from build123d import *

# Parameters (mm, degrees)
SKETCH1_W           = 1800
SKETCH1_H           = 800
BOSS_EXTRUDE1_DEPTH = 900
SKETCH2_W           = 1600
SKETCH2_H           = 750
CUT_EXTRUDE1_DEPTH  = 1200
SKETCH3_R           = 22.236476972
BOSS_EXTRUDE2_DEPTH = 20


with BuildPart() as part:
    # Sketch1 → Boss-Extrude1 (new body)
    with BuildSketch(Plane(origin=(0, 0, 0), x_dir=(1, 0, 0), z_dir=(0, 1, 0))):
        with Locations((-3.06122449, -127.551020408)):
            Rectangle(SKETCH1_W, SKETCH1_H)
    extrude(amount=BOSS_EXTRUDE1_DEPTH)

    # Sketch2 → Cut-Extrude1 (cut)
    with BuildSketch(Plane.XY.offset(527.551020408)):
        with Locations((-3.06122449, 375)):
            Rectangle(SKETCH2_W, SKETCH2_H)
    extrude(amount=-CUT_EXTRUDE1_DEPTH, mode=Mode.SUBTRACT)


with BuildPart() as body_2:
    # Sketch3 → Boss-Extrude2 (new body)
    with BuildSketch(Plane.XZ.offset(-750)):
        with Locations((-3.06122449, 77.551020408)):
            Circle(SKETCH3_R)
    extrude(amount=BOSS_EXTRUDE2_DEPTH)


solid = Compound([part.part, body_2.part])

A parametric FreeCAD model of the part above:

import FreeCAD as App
import Part
import Sketcher


def add_polygon(sketch, points):
    """Adds a closed chain of lines whose ends are joined by coincident constraints."""
    first, n = sketch.GeometryCount, len(points)
    for a, b in zip(points, points[1:] + points[:1]):
        sketch.addGeometry(Part.LineSegment(App.Vector(*a, 0), App.Vector(*b, 0)), False)
    for i in range(n):
        sketch.addConstraint(Sketcher.Constraint("Coincident", first + i, 2, first + (i + 1) % n, 1))

doc = App.newDocument("Part")
body = doc.addObject("PartDesign::Body", "Body")

# Sketch on XZ plane
sketch1 = body.newObject("Sketcher::SketchObject", "Sketch")
sketch1.AttachmentSupport = (doc.getObject("XZ_Plane"), [""])
sketch1.MapMode = "FlatFace"
add_polygon(sketch1, [(-903, -272), (-903, 528), (897, 528), (897, -272)])  # lines 0-3
sketch1.addConstraint([
    Sketcher.Constraint("Vertical", 0),
    Sketcher.Constraint("Horizontal", 1),
    Sketcher.Constraint("Vertical", 2),
    Sketcher.Constraint("Horizontal", 3),
    Sketcher.Constraint("DistanceX", 1, 1, 1, 2, 1800.0),
    Sketcher.Constraint("DistanceY", 0, 1, 0, 2, 800.0),
    Sketcher.Constraint("DistanceY", -1, 1, 0, 2, 527.55102),
    Sketcher.Constraint("DistanceX", 0, 2, -1, 1, 903.061224),
])
pad1 = body.newObject("PartDesign::Pad", "Pad")
pad1.Profile = sketch1
pad1.Length = 900
pad1.Reversed = True

# Sketch on XY plane
sketch2 = body.newObject("Sketcher::SketchObject", "Sketch001")
sketch2.AttachmentSupport = (doc.getObject("XY_Plane"), [""])
sketch2.MapMode = "FlatFace"
sketch2.AttachmentOffset = App.Placement(App.Vector(0, 0, 527.55102), App.Rotation())
add_polygon(sketch2, [(-803, 750), (-803, 0), (797, 0), (797, 750)])  # lines 0-3
sketch2.addConstraint([
    Sketcher.Constraint("Vertical", 0),
    Sketcher.Constraint("Horizontal", 1),
    Sketcher.Constraint("Vertical", 2),
    Sketcher.Constraint("Horizontal", 3),
    Sketcher.Constraint("PointOnObject", 0, 2, -1),
    Sketcher.Constraint("DistanceX", 1, 1, 1, 2, 1600.0),
    Sketcher.Constraint("DistanceY", 0, 2, 0, 1, 750.0),
    Sketcher.Constraint("DistanceX", 0, 2, -1, 1, 803.061224),
])
pocket1 = body.newObject("PartDesign::Pocket", "Pocket")
pocket1.Profile = sketch2
pocket1.Length = 1200
body2 = doc.addObject("PartDesign::Body", "Body001")

# Sketch on XZ plane
sketch3 = body2.newObject("Sketcher::SketchObject", "Sketch002")
sketch3.AttachmentSupport = (doc.getObject("XZ_Plane001"), [""])
sketch3.MapMode = "FlatFace"
sketch3.AttachmentOffset = App.Placement(App.Vector(0, 0, -750), App.Rotation())
sketch3.addGeometry(Part.Circle(App.Vector(-3, 78, 0), App.Vector(0, 0, 1), 22), False)
sketch3.addConstraint([
    Sketcher.Constraint("Diameter", 0, 44.472954),
    Sketcher.Constraint("DistanceY", -1, 1, 0, 3, 77.55102),
    Sketcher.Constraint("DistanceX", 0, 3, -1, 1, 3.061224),
])
pad2 = body2.newObject("PartDesign::Pad", "Pad001")
pad2.Profile = sketch3
pad2.Length = 20

doc.recompute()
